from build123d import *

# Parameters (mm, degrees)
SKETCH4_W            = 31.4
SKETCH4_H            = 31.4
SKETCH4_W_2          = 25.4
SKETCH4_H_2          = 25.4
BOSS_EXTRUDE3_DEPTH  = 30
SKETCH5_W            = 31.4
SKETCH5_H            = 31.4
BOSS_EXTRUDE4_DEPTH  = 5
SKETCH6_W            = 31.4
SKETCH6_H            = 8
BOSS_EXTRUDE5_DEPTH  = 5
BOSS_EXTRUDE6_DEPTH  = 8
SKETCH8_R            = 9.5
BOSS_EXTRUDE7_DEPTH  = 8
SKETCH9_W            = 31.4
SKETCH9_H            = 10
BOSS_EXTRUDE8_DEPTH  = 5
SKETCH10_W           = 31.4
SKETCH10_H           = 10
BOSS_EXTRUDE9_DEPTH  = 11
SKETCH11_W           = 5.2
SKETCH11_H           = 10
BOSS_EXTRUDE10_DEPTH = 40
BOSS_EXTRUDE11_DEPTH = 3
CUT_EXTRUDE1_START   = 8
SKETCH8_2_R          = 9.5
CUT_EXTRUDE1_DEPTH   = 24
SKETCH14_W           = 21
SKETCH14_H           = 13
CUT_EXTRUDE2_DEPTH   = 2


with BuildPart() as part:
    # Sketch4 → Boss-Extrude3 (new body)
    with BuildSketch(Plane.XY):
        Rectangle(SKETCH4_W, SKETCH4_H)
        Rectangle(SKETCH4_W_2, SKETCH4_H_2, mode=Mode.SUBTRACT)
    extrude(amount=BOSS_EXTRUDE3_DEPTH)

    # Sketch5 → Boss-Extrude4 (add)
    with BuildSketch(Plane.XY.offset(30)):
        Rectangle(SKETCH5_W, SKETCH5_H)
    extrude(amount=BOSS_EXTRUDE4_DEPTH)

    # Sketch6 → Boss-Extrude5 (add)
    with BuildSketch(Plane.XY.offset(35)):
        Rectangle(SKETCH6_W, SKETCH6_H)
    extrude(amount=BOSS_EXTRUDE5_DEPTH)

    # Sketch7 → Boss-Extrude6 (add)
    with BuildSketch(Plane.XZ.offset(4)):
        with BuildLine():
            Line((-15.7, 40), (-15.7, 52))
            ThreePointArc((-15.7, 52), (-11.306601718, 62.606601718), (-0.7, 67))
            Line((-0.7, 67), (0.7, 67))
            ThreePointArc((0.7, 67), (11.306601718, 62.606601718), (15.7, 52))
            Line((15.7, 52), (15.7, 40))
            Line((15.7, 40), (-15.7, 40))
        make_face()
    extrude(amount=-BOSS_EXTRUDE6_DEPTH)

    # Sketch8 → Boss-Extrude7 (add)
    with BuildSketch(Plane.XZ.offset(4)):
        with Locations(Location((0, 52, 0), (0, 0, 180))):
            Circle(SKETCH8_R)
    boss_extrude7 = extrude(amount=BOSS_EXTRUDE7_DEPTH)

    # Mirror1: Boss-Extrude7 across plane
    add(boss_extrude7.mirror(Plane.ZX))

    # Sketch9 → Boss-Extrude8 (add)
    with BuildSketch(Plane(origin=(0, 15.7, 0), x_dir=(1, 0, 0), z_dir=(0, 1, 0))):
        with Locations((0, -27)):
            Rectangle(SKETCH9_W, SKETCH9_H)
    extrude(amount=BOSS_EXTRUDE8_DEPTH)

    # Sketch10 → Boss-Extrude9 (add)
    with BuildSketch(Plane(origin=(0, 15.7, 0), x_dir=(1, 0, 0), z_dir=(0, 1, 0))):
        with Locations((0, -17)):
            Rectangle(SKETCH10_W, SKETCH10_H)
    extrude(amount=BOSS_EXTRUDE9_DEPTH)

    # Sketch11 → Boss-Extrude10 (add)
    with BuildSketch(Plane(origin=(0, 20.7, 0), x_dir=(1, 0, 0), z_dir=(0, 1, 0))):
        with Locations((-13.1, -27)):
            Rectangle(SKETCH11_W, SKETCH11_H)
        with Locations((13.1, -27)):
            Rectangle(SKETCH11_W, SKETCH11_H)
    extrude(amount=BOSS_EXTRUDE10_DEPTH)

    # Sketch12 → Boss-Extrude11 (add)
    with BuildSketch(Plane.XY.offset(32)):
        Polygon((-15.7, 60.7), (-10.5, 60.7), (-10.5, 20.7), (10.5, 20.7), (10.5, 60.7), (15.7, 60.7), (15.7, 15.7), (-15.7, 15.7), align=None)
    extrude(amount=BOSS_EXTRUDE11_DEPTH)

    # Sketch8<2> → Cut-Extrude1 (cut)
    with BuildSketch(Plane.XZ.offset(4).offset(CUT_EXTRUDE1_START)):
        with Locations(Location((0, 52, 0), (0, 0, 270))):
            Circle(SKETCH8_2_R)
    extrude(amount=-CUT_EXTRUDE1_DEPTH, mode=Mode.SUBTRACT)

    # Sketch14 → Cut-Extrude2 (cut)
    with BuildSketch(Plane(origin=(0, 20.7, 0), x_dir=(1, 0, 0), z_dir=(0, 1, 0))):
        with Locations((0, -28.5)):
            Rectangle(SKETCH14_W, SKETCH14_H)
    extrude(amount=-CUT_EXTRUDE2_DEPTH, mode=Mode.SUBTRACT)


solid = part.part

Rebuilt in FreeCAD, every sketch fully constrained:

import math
import FreeCAD as App
import Part
import Sketcher

V = App.Vector
Q = App.Units.Quantity


def add_polygon(sketch, points):
    """Adds a closed chain of lines whose ends are joined by coincident constraints."""
    first, n = sketch.GeometryCount, len(points)
    for a, b in zip(points, points[1:] + points[:1]):
        sketch.addGeometry(Part.LineSegment(App.Vector(*a, 0), App.Vector(*b, 0)), False)
    for i in range(n):
        sketch.addConstraint(Sketcher.Constraint("Coincident", first + i, 2, first + (i + 1) % n, 1))

doc = App.newDocument("Part")
body = doc.addObject("PartDesign::Body", "Body")

# Sketch on XY plane
sketch1 = body.newObject("Sketcher::SketchObject", "Sketch")
sketch1.AttachmentSupport = (doc.getObject("XY_Plane"), [""])
sketch1.MapMode = "FlatFace"
add_polygon(sketch1, [(-16, 16), (-16, -16), (16, -16), (16, 16)])  # lines 0-3
add_polygon(sketch1, [(13, -13), (-13, -13), (-13, 13), (13, 13)])  # lines 4-7
sketch1.addConstraint([
    Sketcher.Constraint("Vertical", 0),
    Sketcher.Constraint("Horizontal", 1),
    Sketcher.Constraint("Vertical", 2),
    Sketcher.Constraint("Horizontal", 3),
    Sketcher.Constraint("Horizontal", 4),
    Sketcher.Constraint("Vertical", 5),
    Sketcher.Constraint("Horizontal", 6),
    Sketcher.Constraint("Vertical", 7),
    Sketcher.Constraint("Symmetric", 0, 2, 2, 2, -1, 1),
    Sketcher.Constraint("Symmetric", 4, 2, 6, 2, -1, 1),
    Sketcher.Constraint("Equal", 3, 0),
    Sketcher.Constraint("Equal", 6, 5),
    Sketcher.Constraint("DistanceX", 1, 1, 1, 2, Q("31.4 mm")),
    Sketcher.Constraint("DistanceX", 4, 2, 4, 1, Q("25.4 mm")),
])
pad1 = body.newObject("PartDesign::Pad", "Pad")
pad1.Profile = sketch1
pad1.Length = 30

# Sketch on XY plane
sketch2 = body.newObject("Sketcher::SketchObject", "Sketch001")
sketch2.AttachmentSupport = (doc.getObject("XY_Plane"), [""])
sketch2.MapMode = "FlatFace"
sketch2.AttachmentOffset = App.Placement(V(0, 0, 30), App.Rotation())
add_polygon(sketch2, [(-16, 16), (-16, -16), (16, -16), (16, 16)])  # lines 0-3
sketch2.addConstraint([
    Sketcher.Constraint("Vertical", 0),
    Sketcher.Constraint("Horizontal", 1),
    Sketcher.Constraint("Vertical", 2),
    Sketcher.Constraint("Horizontal", 3),
    Sketcher.Constraint("Symmetric", 0, 2, 2, 2, -1, 1),
    Sketcher.Constraint("Equal", 3, 0),
    Sketcher.Constraint("DistanceX", 1, 1, 1, 2, Q("31.4 mm")),
])
pad2 = body.newObject("PartDesign::Pad", "Pad001")
pad2.Profile = sketch2
pad2.Length = 5

# Sketch on XY plane
sketch3 = body.newObject("Sketcher::SketchObject", "Sketch002")
sketch3.AttachmentSupport = (doc.getObject("XY_Plane"), [""])
sketch3.MapMode = "FlatFace"
sketch3.AttachmentOffset = App.Placement(V(0, 0, 35), App.Rotation())
add_polygon(sketch3, [(-16, 4), (-16, -4), (16, -4), (16, 4)])  # lines 0-3
sketch3.addConstraint([
    Sketcher.Constraint("Vertical", 0),
    Sketcher.Constraint("Horizontal", 1),
    Sketcher.Constraint("Vertical", 2),
    Sketcher.Constraint("Horizontal", 3),
    Sketcher.Constraint("Symmetric", 0, 2, 2, 2, -1, 1),
    Sketcher.Constraint("DistanceY", 0, 2, 0, 1, Q("8 mm")),
    Sketcher.Constraint("DistanceX", 1, 1, 1, 2, Q("31.4 mm")),
])
pad3 = body.newObject("PartDesign::Pad", "Pad002")
pad3.Profile = sketch3
pad3.Length = 5

# Sketch on XZ plane
sketch4 = body.newObject("Sketcher::SketchObject", "Sketch003")
sketch4.AttachmentSupport = (doc.getObject("XZ_Plane"), [""])
sketch4.MapMode = "FlatFace"
sketch4.AttachmentOffset = App.Placement(V(0, 0, 4), App.Rotation())
sketch4.addGeometry([
    Part.LineSegment(V(-15.7, 52, 0), V(-15.7, 40, 0)),  # 0
    Part.LineSegment(V(-15.7, 40, 0), V(15.7, 40, 0)),  # 1
    Part.LineSegment(V(15.7, 40, 0), V(15.7, 52, 0)),  # 2
    Part.ArcOfCircle(Part.Circle(V(0.7, 52, 0), V(0, 0, 1), 15), math.radians(0), math.radians(90)),  # 3
    Part.LineSegment(V(0.7, 67, 0), V(-0.7, 67, 0)),  # 4
    Part.ArcOfCircle(Part.Circle(V(-0.7, 52, 0), V(0, 0, 1), 15), math.radians(90), math.radians(180)),  # 5
], False)
sketch4.addConstraint([
    Sketcher.Constraint("Coincident", 0, 2, 1, 1),
    Sketcher.Constraint("Coincident", 1, 2, 2, 1),
    Sketcher.Constraint("Tangent", 2, 2, 3, 1),
    Sketcher.Constraint("Tangent", 3, 2, 4, 1),
    Sketcher.Constraint("Tangent", 4, 2, 5, 1),
    Sketcher.Constraint("Tangent", 5, 2, 0, 1),
    Sketcher.Constraint("Vertical", 0),
    Sketcher.Constraint("Horizontal", 1),
    Sketcher.Constraint("Vertical", 2),
    Sketcher.Constraint("Horizontal", 4),
    Sketcher.Constraint("Equal", 3, 5),
    Sketcher.Constraint("Radius", 3, Q("15 mm")),
    Sketcher.Constraint("DistanceY", 0, 2, 0, 1, Q("12 mm")),
    Sketcher.Constraint("DistanceX", 1, 1, 1, 2, Q("31.4 mm")),
    Sketcher.Constraint("DistanceY", -1, 1, 3, 3, Q("52 mm")),
    Sketcher.Constraint("DistanceX", -1, 1, 3, 3, Q("0.7 mm")),
])
pad4 = body.newObject("PartDesign::Pad", "Pad003")
pad4.Profile = sketch4
pad4.Length = 8
pad4.Reversed = True

# Sketch on XZ plane
sketch5 = body.newObject("Sketcher::SketchObject", "Sketch004")
sketch5.AttachmentSupport = (doc.getObject("XZ_Plane"), [""])
sketch5.MapMode = "FlatFace"
sketch5.AttachmentOffset = App.Placement(V(0, 0, 4), App.Rotation())
sketch5.addGeometry(Part.Circle(V(0, 52, 0), V(0, 0, 1), 10), False)
sketch5.addConstraint([
    Sketcher.Constraint("PointOnObject", 0, 3, -2),
    Sketcher.Constraint("Diameter", 0, Q("19 mm")),
    Sketcher.Constraint("DistanceY", -1, 1, 0, 3, Q("52 mm")),
])
pad5 = body.newObject("PartDesign::Pad", "Pad004")
pad5.Profile = sketch5
pad5.Length = 8
doc.recompute()

mirrored = body.newObject("PartDesign::Mirrored", "Mirrored")
mirrored.Originals = [pad5]
mirrored.MirrorPlane = (doc.getObject("XZ_Plane"), [""])
body.Tip = mirrored

# Sketch on XZ plane
sketch6 = body.newObject("Sketcher::SketchObject", "Sketch005")
sketch6.AttachmentSupport = (doc.getObject("XZ_Plane"), [""])
sketch6.MapMode = "FlatFace"
sketch6.AttachmentOffset = App.Placement(V(0, 0, -15.7), App.Rotation())
add_polygon(sketch6, [(-16, 22), (-16, 32), (16, 32), (16, 22)])  # lines 0-3
sketch6.addConstraint([
    Sketcher.Constraint("Vertical", 0),
    Sketcher.Constraint("Horizontal", 1),
    Sketcher.Constraint("Vertical", 2),
    Sketcher.Constraint("Horizontal", 3),
    Sketcher.Constraint("DistanceY", 0, 1, 0, 2, Q("10 mm")),
    Sketcher.Constraint("DistanceX", 1, 1, 1, 2, Q("31.4 mm")),
    Sketcher.Constraint("DistanceY", -1, 1, 0, 2, Q("32 mm")),
    Sketcher.Constraint("DistanceX", 0, 2, -1, 1, Q("15.7 mm")),
])
pad6 = body.newObject("PartDesign::Pad", "Pad005")
pad6.Profile = sketch6
pad6.Length = 5
pad6.Reversed = True

# Sketch on XZ plane
sketch7 = body.newObject("Sketcher::SketchObject", "Sketch006")
sketch7.AttachmentSupport = (doc.getObject("XZ_Plane"), [""])
sketch7.MapMode = "FlatFace"
sketch7.AttachmentOffset = App.Placement(V(0, 0, -15.7), App.Rotation())
add_polygon(sketch7, [(-16, 12), (-16, 22), (16, 22), (16, 12)])  # lines 0-3
sketch7.addConstraint([
    Sketcher.Constraint("Vertical", 0),
    Sketcher.Constraint("Horizontal", 1),
    Sketcher.Constraint("Vertical", 2),
    Sketcher.Constraint("Horizontal", 3),
    Sketcher.Constraint("DistanceY", 0, 1, 0, 2, Q("10 mm")),
    Sketcher.Constraint("DistanceX", 1, 1, 1, 2, Q("31.4 mm")),
    Sketcher.Constraint("DistanceY", -1, 1, 0, 2, Q("22 mm")),
    Sketcher.Constraint("DistanceX", 0, 2, -1, 1, Q("15.7 mm")),
])
pad7 = body.newObject("PartDesign::Pad", "Pad006")
pad7.Profile = sketch7
pad7.Length = 11
pad7.Reversed = True

# Sketch on XZ plane
sketch8 = body.newObject("Sketcher::SketchObject", "Sketch007")
sketch8.AttachmentSupport = (doc.getObject("XZ_Plane"), [""])
sketch8.MapMode = "FlatFace"
sketch8.AttachmentOffset = App.Placement(V(0, 0, -20.7), App.Rotation())
add_polygon(sketch8, [(-16, 22), (-16, 32), (-10, 32), (-10, 22)])  # lines 0-3
add_polygon(sketch8, [(10, 22), (10, 32), (16, 32), (16, 22)])  # lines 4-7
sketch8.addConstraint([
    Sketcher.Constraint("Vertical", 0),
    Sketcher.Constraint("Horizontal", 1),
    Sketcher.Constraint("Vertical", 2),
    Sketcher.Constraint("Horizontal", 3),
    Sketcher.Constraint("Vertical", 4),
    Sketcher.Constraint("Horizontal", 5),
    Sketcher.Constraint("Vertical", 6),
    Sketcher.Constraint("Horizontal", 7),
    Sketcher.Constraint("Symmetric", 1, 2, 4, 2, -2),
    Sketcher.Constraint("Symmetric", 3, 2, 6, 2, -2),
    Sketcher.Constraint("DistanceY", 0, 1, 0, 2, Q("10 mm")),
    Sketcher.Constraint("DistanceX", 1, 1, 1, 2, Q("5.2 mm")),
    Sketcher.Constraint("DistanceY", -1, 1, 0, 2, Q("32 mm")),
    Sketcher.Constraint("DistanceX", 1, 2, 4, 2, Q("21 mm")),
])
pad8 = body.newObject("PartDesign::Pad", "Pad007")
pad8.Profile = sketch8
pad8.Length = 40
pad8.Reversed = True

# Sketch on XY plane
sketch9 = body.newObject("Sketcher::SketchObject", "Sketch008")
sketch9.AttachmentSupport = (doc.getObject("XY_Plane"), [""])
sketch9.MapMode = "FlatFace"
sketch9.AttachmentOffset = App.Placement(V(0, 0, 32), App.Rotation())
add_polygon(sketch9, [(-10, 61), (-16, 61), (-16, 16), (16, 16), (16, 61), (10, 61), (10, 21), (-10, 21)])  # lines 0-7
sketch9.addConstraint([
    Sketcher.Constraint("Horizontal", 0),
    Sketcher.Constraint("Vertical", 1),
    Sketcher.Constraint("Horizontal", 2),
    Sketcher.Constraint("Vertical", 3),
    Sketcher.Constraint("Horizontal", 4),
    Sketcher.Constraint("Vertical", 5),
    Sketcher.Constraint("Horizontal", 6),
    Sketcher.Constraint("Vertical", 7),
    Sketcher.Constraint("Symmetric", 0, 2, 3, 2, -2),
    Sketcher.Constraint("Equal", 0, 4),
    Sketcher.Constraint("DistanceX", 6, 2, 6, 1, Q("21 mm")),
    Sketcher.Constraint("DistanceY", 1, 2, 1, 1, Q("45 mm")),
    Sketcher.Constraint("DistanceY", 5, 2, 5, 1, Q("40 mm")),
    Sketcher.Constraint("DistanceX", 0, 2, 0, 1, Q("5.2 mm")),
    Sketcher.Constraint("DistanceY", -1, 1, 0, 2, Q("60.7 mm")),
])
pad9 = body.newObject("PartDesign::Pad", "Pad008")
pad9.Profile = sketch9
pad9.Length = 3

# Sketch on XZ plane
sketch10 = body.newObject("Sketcher::SketchObject", "Sketch009")
sketch10.AttachmentSupport = (doc.getObject("XZ_Plane"), [""])
sketch10.MapMode = "FlatFace"
sketch10.AttachmentOffset = App.Placement(V(0, 0, 12), App.Rotation())
sketch10.addGeometry(Part.Circle(V(0, 52, 0), V(0, 0, 1), 10), False)
sketch10.addConstraint([
    Sketcher.Constraint("PointOnObject", 0, 3, -2),
    Sketcher.Constraint("Diameter", 0, Q("19 mm")),
    Sketcher.Constraint("DistanceY", -1, 1, 0, 3, Q("52 mm")),
])
pocket1 = body.newObject("PartDesign::Pocket", "Pocket")
pocket1.Profile = sketch10
pocket1.Length = 24

# Sketch on XZ plane
sketch11 = body.newObject("Sketcher::SketchObject", "Sketch010")
sketch11.AttachmentSupport = (doc.getObject("XZ_Plane"), [""])
sketch11.MapMode = "FlatFace"
sketch11.AttachmentOffset = App.Placement(V(0, 0, -20.7), App.Rotation())
add_polygon(sketch11, [(-10, 22), (-10, 35), (10, 35), (10, 22)])  # lines 0-3
sketch11.addConstraint([
    Sketcher.Constraint("Vertical", 0),
    Sketcher.Constraint("Horizontal", 1),
    Sketcher.Constraint("Vertical", 2),
    Sketcher.Constraint("Horizontal", 3),
    Sketcher.Constraint("DistanceX", 1, 1, 1, 2, Q("21 mm")),
    Sketcher.Constraint("DistanceY", 0, 1, 0, 2, Q("13 mm")),
    Sketcher.Constraint("DistanceY", -1, 1, 0, 2, Q("35 mm")),
    Sketcher.Constraint("DistanceX", 0, 2, -1, 1, Q("10.5 mm")),
])
pocket2 = body.newObject("PartDesign::Pocket", "Pocket001")
pocket2.Profile = sketch11
pocket2.Length = 2
pocket2.Reversed = True

doc.recompute()
